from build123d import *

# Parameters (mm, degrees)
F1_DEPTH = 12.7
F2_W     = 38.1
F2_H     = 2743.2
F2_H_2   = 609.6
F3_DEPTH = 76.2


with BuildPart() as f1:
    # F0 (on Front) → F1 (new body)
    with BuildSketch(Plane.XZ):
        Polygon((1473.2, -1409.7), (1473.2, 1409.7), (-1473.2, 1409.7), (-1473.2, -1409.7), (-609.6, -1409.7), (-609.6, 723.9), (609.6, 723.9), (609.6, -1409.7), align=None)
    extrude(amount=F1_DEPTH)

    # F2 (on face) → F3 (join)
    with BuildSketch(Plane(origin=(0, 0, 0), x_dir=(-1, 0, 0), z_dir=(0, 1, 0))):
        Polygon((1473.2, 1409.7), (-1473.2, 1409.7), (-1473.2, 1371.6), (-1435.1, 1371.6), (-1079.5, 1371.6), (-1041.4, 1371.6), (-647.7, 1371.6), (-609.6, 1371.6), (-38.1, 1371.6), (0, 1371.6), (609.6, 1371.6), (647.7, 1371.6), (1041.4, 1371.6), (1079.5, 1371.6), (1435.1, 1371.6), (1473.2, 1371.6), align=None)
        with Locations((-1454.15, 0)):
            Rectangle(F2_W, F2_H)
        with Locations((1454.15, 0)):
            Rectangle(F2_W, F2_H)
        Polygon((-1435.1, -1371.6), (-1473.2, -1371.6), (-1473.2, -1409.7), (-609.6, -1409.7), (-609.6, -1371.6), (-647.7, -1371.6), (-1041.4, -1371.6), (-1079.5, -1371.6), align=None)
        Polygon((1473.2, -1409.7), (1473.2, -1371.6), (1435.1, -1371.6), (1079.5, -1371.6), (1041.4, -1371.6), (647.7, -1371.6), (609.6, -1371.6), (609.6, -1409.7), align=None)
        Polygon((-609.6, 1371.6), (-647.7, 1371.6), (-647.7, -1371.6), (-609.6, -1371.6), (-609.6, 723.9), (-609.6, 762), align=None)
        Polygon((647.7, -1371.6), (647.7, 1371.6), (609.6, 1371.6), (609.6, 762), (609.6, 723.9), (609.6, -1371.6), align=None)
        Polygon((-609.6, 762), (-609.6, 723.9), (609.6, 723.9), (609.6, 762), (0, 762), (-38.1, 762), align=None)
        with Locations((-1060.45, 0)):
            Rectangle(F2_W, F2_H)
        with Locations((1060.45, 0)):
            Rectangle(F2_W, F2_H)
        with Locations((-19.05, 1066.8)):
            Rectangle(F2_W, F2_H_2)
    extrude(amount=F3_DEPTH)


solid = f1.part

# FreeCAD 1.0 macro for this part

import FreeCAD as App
import Part
import Sketcher
from FreeCAD import Vector
Q = App.Units.Quantity

doc = App.newDocument("Part")
params = doc.addObject("Spreadsheet::Sheet", "Params")
for row, (alias, value) in enumerate([
    ("sketch1_width", "116 in"),
    ("sketch1_width2", "34 in"),
    ("sketch1_height", "111 in"),
    ("sketch1_height2", "84 in"),
    ("pad1_length", "0.5 in"),
    ("sketch2_width", "116 in"),
    ("sketch2_width2", "34 in"),
    ("sketch2_width3", "14 in"),
    ("sketch2_height", "111 in"),
    ("sketch2_height2", "84 in"),
    ("pad2_length", "3 in"),
], start=1):
    params.set(f"A{row}", alias)
    params.set(f"B{row}", "=" + value)
    params.setAlias(f"B{row}", alias)

body = doc.addObject("PartDesign::Body", "Body")

sketch1 = doc.addObject("Sketcher::SketchObject", "Sketch")
body.addObject(sketch1)
sketch1.AttachmentSupport = (doc.XZ_Plane, [""])
sketch1.MapMode = "FlatFace"
sketch1.addGeometry([
    Part.LineSegment(Vector(1473, -1410, 0), Vector(1473, 1410, 0)),
    Part.LineSegment(Vector(1473, 1410, 0), Vector(-1473, 1410, 0)),
    Part.LineSegment(Vector(-1473, 1410, 0), Vector(-1473, -1410, 0)),
    Part.LineSegment(Vector(-1473, -1410, 0), Vector(-610, -1410, 0)),
    Part.LineSegment(Vector(-610, -1410, 0), Vector(-610, 724, 0)),
    Part.LineSegment(Vector(-610, 724, 0), Vector(610, 724, 0)),
    Part.LineSegment(Vector(610, 724, 0), Vector(610, -1410, 0)),
    Part.LineSegment(Vector(610, -1410, 0), Vector(1473, -1410, 0)),
], False)
sketch1.addConstraint([
    Sketcher.Constraint("Coincident", 0, 2, 1, 1),
    Sketcher.Constraint("Coincident", 1, 2, 2, 1),
    Sketcher.Constraint("Coincident", 2, 2, 3, 1),
    Sketcher.Constraint("Coincident", 3, 2, 4, 1),
    Sketcher.Constraint("Coincident", 4, 2, 5, 1),
    Sketcher.Constraint("Coincident", 5, 2, 6, 1),
    Sketcher.Constraint("Coincident", 6, 2, 7, 1),
    Sketcher.Constraint("Coincident", 7, 2, 0, 1),
    Sketcher.Constraint("Vertical", 0),
    Sketcher.Constraint("Horizontal", 1),
    Sketcher.Constraint("Vertical", 2),
    Sketcher.Constraint("Horizontal", 3),
    Sketcher.Constraint("Vertical", 4),
    Sketcher.Constraint("Horizontal", 5),
    Sketcher.Constraint("Vertical", 6),
    Sketcher.Constraint("Horizontal", 7),
    Sketcher.Constraint("Symmetric", 0, 2, 2, 2, -1, 1),
    Sketcher.Constraint("Symmetric", 3, 2, 6, 2, -2),
    Sketcher.Constraint("DistanceX", 1, 2, 1, 1, Q("116 in")),
    Sketcher.Constraint("DistanceX", 3, 1, 3, 2, Q("34 in")),
    Sketcher.Constraint("DistanceY", 0, 1, 0, 2, Q("111 in")),
    Sketcher.Constraint("DistanceY", 4, 1, 4, 2, Q("84 in")),
])
sketch1.setExpression("Constraints[18]", "Params.sketch1_width")
sketch1.setExpression("Constraints[19]", "Params.sketch1_width2")
sketch1.setExpression("Constraints[20]", "Params.sketch1_height")
sketch1.setExpression("Constraints[21]", "Params.sketch1_height2")
pad1 = doc.addObject("PartDesign::Pad", "Pad")
body.addObject(pad1)
pad1.Profile = sketch1
pad1.setExpression("Length", "Params.pad1_length")

sketch2 = doc.addObject("Sketcher::SketchObject", "Sketch001")
body.addObject(sketch2)
sketch2.AttachmentSupport = (doc.XZ_Plane, [""])
sketch2.MapMode = "FlatFace"
sketch2.addGeometry([
    Part.LineSegment(Vector(-1473, 1410, 0), Vector(1473, 1410, 0)),
    Part.LineSegment(Vector(1473, 1410, 0), Vector(1473, -1410, 0)),
    Part.LineSegment(Vector(1473, -1410, 0), Vector(610, -1410, 0)),
    Part.LineSegment(Vector(610, -1410, 0), Vector(610, 724, 0)),
    Part.LineSegment(Vector(610, 724, 0), Vector(-610, 724, 0)),
    Part.LineSegment(Vector(-610, 724, 0), Vector(-610, -1410, 0)),
    Part.LineSegment(Vector(-610, -1410, 0), Vector(-1473, -1410, 0)),
    Part.LineSegment(Vector(-1473, -1410, 0), Vector(-1473, 1410, 0)),
    Part.LineSegment(Vector(610, 762, 0), Vector(610, 1372, 0)),
    Part.LineSegment(Vector(610, 1372, 0), Vector(38, 1372, 0)),
    Part.LineSegment(Vector(38, 1372, 0), Vector(38, 762, 0)),
    Part.LineSegment(Vector(38, 762, 0), Vector(610, 762, 0)),
    Part.LineSegment(Vector(0, 1372, 0), Vector(-610, 1372, 0)),
    Part.LineSegment(Vector(-610, 1372, 0), Vector(-610, 762, 0)),
    Part.LineSegment(Vector(-610, 762, 0), Vector(0, 762, 0)),
    Part.LineSegment(Vector(0, 762, 0), Vector(0, 1372, 0)),
    Part.LineSegment(Vector(-648, 1372, 0), Vector(-1041, 1372, 0)),
    Part.LineSegment(Vector(-1041, 1372, 0), Vector(-1041, -1372, 0)),
    Part.LineSegment(Vector(-1041, -1372, 0), Vector(-648, -1372, 0)),
    Part.LineSegment(Vector(-648, -1372, 0), Vector(-648, 1372, 0)),
    Part.LineSegment(Vector(-1080, 1372, 0), Vector(-1435, 1372, 0)),
    Part.LineSegment(Vector(-1435, 1372, 0), Vector(-1435, -1372, 0)),
    Part.LineSegment(Vector(-1435, -1372, 0), Vector(-1080, -1372, 0)),
    Part.LineSegment(Vector(-1080, -1372, 0), Vector(-1080, 1372, 0)),
    Part.LineSegment(Vector(648, -1372, 0), Vector(1041, -1372, 0)),
    Part.LineSegment(Vector(1041, -1372, 0), Vector(1041, 1372, 0)),
    Part.LineSegment(Vector(1041, 1372, 0), Vector(648, 1372, 0)),
    Part.LineSegment(Vector(648, 1372, 0), Vector(648, -1372, 0)),
    Part.LineSegment(Vector(1080, -1372, 0), Vector(1435, -1372, 0)),
    Part.LineSegment(Vector(1435, -1372, 0), Vector(1435, 1372, 0)),
    Part.LineSegment(Vector(1435, 1372, 0), Vector(1080, 1372, 0)),
    Part.LineSegment(Vector(1080, 1372, 0), Vector(1080, -1372, 0)),
], False)
sketch2.addConstraint([
    Sketcher.Constraint("Coincident", 0, 2, 1, 1),
    Sketcher.Constraint("Coincident", 1, 2, 2, 1),
    Sketcher.Constraint("Coincident", 2, 2, 3, 1),
    Sketcher.Constraint("Coincident", 3, 2, 4, 1),
    Sketcher.Constraint("Coincident", 4, 2, 5, 1),
    Sketcher.Constraint("Coincident", 5, 2, 6, 1),
    Sketcher.Constraint("Coincident", 6, 2, 7, 1),
    Sketcher.Constraint("Coincident", 7, 2, 0, 1),
    Sketcher.Constraint("Coincident", 8, 2, 9, 1),
    Sketcher.Constraint("Coincident", 9, 2, 10, 1),
    Sketcher.Constraint("Coincident", 10, 2, 11, 1),
    Sketcher.Constraint("Coincident", 11, 2, 8, 1),
    Sketcher.Constraint("Coincident", 12, 2, 13, 1),
    Sketcher.Constraint("Coincident", 13, 2, 14, 1),
    Sketcher.Constraint("Coincident", 14, 2, 15, 1),
    Sketcher.Constraint("Coincident", 15, 2, 12, 1),
    Sketcher.Constraint("Coincident", 16, 2, 17, 1),
    Sketcher.Constraint("Coincident", 17, 2, 18, 1),
    Sketcher.Constraint("Coincident", 18, 2, 19, 1),
    Sketcher.Constraint("Coincident", 19, 2, 16, 1),
    Sketcher.Constraint("Coincident", 20, 2, 21, 1),
    Sketcher.Constraint("Coincident", 21, 2, 22, 1),
    Sketcher.Constraint("Coincident", 22, 2, 23, 1),
    Sketcher.Constraint("Coincident", 23, 2, 20, 1),
    Sketcher.Constraint("Coincident", 24, 2, 25, 1),
    Sketcher.Constraint("Coincident", 25, 2, 26, 1),
    Sketcher.Constraint("Coincident", 26, 2, 27, 1),
    Sketcher.Constraint("Coincident", 27, 2, 24, 1),
    Sketcher.Constraint("Coincident", 28, 2, 29, 1),
    Sketcher.Constraint("Coincident", 29, 2, 30, 1),
    Sketcher.Constraint("Coincident", 30, 2, 31, 1),
    Sketcher.Constraint("Coincident", 31, 2, 28, 1),
    Sketcher.Constraint("Horizontal", 0),
    Sketcher.Constraint("Vertical", 1),
    Sketcher.Constraint("Horizontal", 2),
    Sketcher.Constraint("Vertical", 3),
    Sketcher.Constraint("Horizontal", 4),
    Sketcher.Constraint("Vertical", 5),
    Sketcher.Constraint("Horizontal", 6),
    Sketcher.Constraint("Vertical", 7),
    Sketcher.Constraint("Vertical", 8),
    Sketcher.Constraint("Horizontal", 9),
    Sketcher.Constraint("Vertical", 10),
    Sketcher.Constraint("Horizontal", 11),
    Sketcher.Constraint("Horizontal", 12),
    Sketcher.Constraint("Vertical", 13),
    Sketcher.Constraint("Horizontal", 14),
    Sketcher.Constraint("Vertical", 15),
    Sketcher.Constraint("Horizontal", 16),
    Sketcher.Constraint("Vertical", 17),
    Sketcher.Constraint("Horizontal", 18),
    Sketcher.Constraint("Vertical", 19),
    Sketcher.Constraint("Horizontal", 20),
    Sketcher.Constraint("Vertical", 21),
    Sketcher.Constraint("Horizontal", 22),
    Sketcher.Constraint("Vertical", 23),
    Sketcher.Constraint("Horizontal", 24),
    Sketcher.Constraint("Vertical", 25),
    Sketcher.Constraint("Horizontal", 26),
    Sketcher.Constraint("Vertical", 27),
    Sketcher.Constraint("Horizontal", 28),
    Sketcher.Constraint("Vertical", 29),
    Sketcher.Constraint("Horizontal", 30),
    Sketcher.Constraint("Vertical", 31),
    Sketcher.Constraint("Symmetric", 0, 2, 6, 2, -1, 1),
    Sketcher.Constraint("Symmetric", 16, 2, 24, 2, -1, 1),
    Sketcher.Constraint("Symmetric", 18, 2, 26, 2, -1, 1),
    Sketcher.Constraint("Symmetric", 20, 2, 28, 2, -1, 1),
    Sketcher.Constraint("Symmetric", 22, 2, 30, 2, -1, 1),
    Sketcher.Constraint("Symmetric", 2, 2, 5, 2, -2),
    Sketcher.Constraint("Symmetric", 8, 2, 12, 2, -2),
    Sketcher.Constraint("PointOnObject", 14, 2, -2),
    Sketcher.Constraint("Horizontal", 11, 2, 13, 2),
    Sketcher.Constraint("Horizontal", 15, 2, 16, 2),
    Sketcher.Constraint("Horizontal", 19, 2, 20, 2),
    Sketcher.Constraint("Horizontal", 18, 2, 21, 2),
    Sketcher.Constraint("Horizontal", 22, 2, 24, 2),
    Sketcher.Constraint("Vertical", 3, 2, 8, 2),
    Sketcher.Constraint("Equal", 14, 8),
    Sketcher.Constraint("DistanceX", 0, 1, 0, 2, Q("116 in")),
    Sketcher.Constraint("DistanceX", 2, 2, 2, 1, Q("34 in")),
    Sketcher.Constraint("DistanceX", 20, 2, 20, 1, Q("14 in")),
    Sketcher.Constraint("DistanceY", 1, 2, 1, 1, Q("111 in")),
    Sketcher.Constraint("DistanceY", 3, 1, 3, 2, Q("84 in")),
    Sketcher.Constraint("DistanceY", 17, 2, 17, 1, Q("108 in")),
    Sketcher.Constraint("DistanceX", 9, 2, 9, 1, Q("22.5 in")),
    Sketcher.Constraint("DistanceX", 16, 2, 16, 1, Q("15.5 in")),
    Sketcher.Constraint("DistanceX", 16, 2, -1, 1, Q("41 in")),
    Sketcher.Constraint("DistanceX", 20, 2, 19, 2, Q("31 in")),
])
sketch2.setExpression("Constraints[79]", "Params.sketch2_width")
sketch2.setExpression("Constraints[80]", "Params.sketch2_width2")
sketch2.setExpression("Constraints[81]", "Params.sketch2_width3")
sketch2.setExpression("Constraints[82]", "Params.sketch2_height")
sketch2.setExpression("Constraints[83]", "Params.sketch2_height2")
pad2 = doc.addObject("PartDesign::Pad", "Pad001")
body.addObject(pad2)
pad2.Profile = sketch2
pad2.setExpression("Length", "Params.pad2_length")
pad2.Reversed = True

doc.recompute()
